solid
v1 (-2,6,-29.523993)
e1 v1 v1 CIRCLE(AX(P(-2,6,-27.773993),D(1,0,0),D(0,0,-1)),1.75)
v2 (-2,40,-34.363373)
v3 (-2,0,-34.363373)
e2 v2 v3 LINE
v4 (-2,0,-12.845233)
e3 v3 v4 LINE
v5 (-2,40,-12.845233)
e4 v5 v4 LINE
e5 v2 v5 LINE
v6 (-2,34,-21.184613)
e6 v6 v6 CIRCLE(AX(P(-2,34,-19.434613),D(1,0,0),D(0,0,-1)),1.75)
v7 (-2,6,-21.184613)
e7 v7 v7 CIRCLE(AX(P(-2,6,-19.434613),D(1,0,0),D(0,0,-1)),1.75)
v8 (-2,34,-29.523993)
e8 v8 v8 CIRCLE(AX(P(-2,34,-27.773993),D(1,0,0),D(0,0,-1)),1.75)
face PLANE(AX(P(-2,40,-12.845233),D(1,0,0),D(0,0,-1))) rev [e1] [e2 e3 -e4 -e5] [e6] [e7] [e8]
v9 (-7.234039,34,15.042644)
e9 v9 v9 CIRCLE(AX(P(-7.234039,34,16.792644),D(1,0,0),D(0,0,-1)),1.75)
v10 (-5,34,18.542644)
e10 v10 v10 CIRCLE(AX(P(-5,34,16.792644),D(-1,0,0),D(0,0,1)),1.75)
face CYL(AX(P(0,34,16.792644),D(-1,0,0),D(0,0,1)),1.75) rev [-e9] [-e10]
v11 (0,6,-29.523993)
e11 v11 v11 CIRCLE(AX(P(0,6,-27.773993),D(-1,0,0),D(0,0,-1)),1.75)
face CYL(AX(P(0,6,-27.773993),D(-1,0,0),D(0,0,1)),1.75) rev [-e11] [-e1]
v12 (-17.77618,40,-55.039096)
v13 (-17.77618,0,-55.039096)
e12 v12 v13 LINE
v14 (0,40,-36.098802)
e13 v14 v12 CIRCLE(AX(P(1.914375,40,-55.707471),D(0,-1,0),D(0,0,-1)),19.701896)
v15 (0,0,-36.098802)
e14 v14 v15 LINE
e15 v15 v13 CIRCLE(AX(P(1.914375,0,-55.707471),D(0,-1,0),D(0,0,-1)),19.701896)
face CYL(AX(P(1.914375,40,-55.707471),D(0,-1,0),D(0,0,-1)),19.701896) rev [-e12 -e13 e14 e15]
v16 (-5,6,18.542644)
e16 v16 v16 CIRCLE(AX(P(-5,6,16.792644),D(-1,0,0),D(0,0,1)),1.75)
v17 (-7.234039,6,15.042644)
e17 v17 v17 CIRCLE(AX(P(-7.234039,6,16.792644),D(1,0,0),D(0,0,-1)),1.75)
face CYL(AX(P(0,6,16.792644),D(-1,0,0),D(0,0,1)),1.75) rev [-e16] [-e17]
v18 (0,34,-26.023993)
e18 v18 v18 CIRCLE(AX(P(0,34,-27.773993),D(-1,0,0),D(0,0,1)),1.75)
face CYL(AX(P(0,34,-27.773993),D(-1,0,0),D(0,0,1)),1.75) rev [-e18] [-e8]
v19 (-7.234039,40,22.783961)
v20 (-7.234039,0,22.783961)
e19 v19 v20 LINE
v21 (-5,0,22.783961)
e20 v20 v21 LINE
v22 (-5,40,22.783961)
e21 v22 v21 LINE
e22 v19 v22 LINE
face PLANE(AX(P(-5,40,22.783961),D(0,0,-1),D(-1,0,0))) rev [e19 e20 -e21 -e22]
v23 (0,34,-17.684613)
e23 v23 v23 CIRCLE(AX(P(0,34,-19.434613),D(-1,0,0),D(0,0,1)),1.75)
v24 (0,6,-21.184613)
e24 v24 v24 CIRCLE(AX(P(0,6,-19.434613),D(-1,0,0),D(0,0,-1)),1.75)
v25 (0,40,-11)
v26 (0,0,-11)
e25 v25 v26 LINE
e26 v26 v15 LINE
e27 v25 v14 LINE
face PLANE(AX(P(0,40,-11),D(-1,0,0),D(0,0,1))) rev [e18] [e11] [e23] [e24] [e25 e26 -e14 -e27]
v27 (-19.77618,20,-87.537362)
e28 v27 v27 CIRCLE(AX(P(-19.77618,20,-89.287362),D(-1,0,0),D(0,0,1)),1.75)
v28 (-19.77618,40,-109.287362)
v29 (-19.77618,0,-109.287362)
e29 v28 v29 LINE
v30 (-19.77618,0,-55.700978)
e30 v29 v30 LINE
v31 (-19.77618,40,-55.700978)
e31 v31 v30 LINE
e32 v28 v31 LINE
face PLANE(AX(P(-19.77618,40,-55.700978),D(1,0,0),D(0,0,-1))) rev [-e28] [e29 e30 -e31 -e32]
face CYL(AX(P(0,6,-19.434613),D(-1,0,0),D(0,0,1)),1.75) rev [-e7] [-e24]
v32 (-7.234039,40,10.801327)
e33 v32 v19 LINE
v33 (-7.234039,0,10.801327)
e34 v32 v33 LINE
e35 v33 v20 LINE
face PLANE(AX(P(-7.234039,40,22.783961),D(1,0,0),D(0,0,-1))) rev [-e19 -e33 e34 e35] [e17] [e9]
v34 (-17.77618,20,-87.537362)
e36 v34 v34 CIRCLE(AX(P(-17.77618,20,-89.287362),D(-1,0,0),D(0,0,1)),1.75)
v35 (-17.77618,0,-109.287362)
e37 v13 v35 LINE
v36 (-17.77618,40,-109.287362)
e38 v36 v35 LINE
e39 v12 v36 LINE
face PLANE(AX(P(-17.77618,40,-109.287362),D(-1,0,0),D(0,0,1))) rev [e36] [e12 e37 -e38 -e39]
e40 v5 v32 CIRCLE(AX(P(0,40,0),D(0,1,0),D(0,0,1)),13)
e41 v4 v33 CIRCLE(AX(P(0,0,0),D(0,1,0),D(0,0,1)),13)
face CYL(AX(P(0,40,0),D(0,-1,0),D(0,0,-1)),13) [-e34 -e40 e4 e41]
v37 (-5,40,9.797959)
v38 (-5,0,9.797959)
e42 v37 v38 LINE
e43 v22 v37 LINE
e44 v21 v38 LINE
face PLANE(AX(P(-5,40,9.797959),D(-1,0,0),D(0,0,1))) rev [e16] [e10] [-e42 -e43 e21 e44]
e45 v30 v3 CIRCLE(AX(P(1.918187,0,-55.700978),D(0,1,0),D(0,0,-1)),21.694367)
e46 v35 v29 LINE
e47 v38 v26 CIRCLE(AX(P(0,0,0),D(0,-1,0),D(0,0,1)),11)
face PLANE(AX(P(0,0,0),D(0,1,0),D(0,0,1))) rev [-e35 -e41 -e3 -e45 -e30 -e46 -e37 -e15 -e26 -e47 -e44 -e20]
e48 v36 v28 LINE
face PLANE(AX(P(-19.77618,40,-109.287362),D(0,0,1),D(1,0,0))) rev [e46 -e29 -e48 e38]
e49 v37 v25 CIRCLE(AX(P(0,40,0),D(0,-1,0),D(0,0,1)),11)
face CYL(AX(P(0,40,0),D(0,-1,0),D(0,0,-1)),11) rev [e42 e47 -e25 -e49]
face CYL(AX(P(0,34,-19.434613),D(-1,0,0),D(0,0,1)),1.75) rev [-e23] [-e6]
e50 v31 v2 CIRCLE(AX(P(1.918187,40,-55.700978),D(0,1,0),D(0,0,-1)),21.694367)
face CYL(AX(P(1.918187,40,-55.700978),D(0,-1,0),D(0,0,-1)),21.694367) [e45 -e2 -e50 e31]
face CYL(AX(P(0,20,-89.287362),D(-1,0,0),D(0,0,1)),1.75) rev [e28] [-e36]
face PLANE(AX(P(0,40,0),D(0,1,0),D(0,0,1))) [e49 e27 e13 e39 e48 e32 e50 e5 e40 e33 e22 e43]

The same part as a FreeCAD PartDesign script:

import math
import FreeCAD as App
import Part
import Sketcher
Q = App.Units.Quantity

doc = App.newDocument("Part")
body = doc.addObject("PartDesign::Body", "Body")

sketch1 = body.newObject("Sketcher::SketchObject", "Sketch")
sketch1.AttachmentSupport = (doc.getObject("XZ_Plane"), [""])
sketch1.MapMode = "FlatFace"
sketch1.addGeometry([
    Part.LineSegment(App.Vector(0, -11, 0), App.Vector(0, -36.1, 0)),
    Part.ArcOfCircle(Part.Circle(App.Vector(1.9, -55.7, 0), App.Vector(0, 0, 1), 19.7), math.radians(96), math.radians(178)),
    Part.LineSegment(App.Vector(-17.8, -55, 0), App.Vector(-17.8, -109.3, 0)),
    Part.LineSegment(App.Vector(-17.8, -109.3, 0), App.Vector(-19.8, -109.3, 0)),
    Part.LineSegment(App.Vector(-19.8, -109.3, 0), App.Vector(-19.8, -55.7, 0)),
    Part.ArcOfCircle(Part.Circle(App.Vector(1.9, -55.7, 0), App.Vector(0, 0, 1), 21.7), math.radians(100), math.radians(180)),
    Part.LineSegment(App.Vector(-2, -34.4, 0), App.Vector(-2, -12.8, 0)),
    Part.ArcOfCircle(Part.Circle(App.Vector(0, 0, 0), App.Vector(0, 0, 1), 13), math.radians(124), math.radians(261)),
    Part.LineSegment(App.Vector(-7.2, 10.8, 0), App.Vector(-7.2, 22.8, 0)),
    Part.LineSegment(App.Vector(-7.2, 22.8, 0), App.Vector(-5, 22.8, 0)),
    Part.LineSegment(App.Vector(-5, 22.8, 0), App.Vector(-5, 9.8, 0)),
    Part.ArcOfCircle(Part.Circle(App.Vector(0, 0, 0), App.Vector(0, 0, 1), 11), math.radians(117), math.radians(270)),
], False)
sketch1.addConstraint([
    Sketcher.Constraint("Coincident", 0, 2, 1, 1),
    Sketcher.Constraint("Coincident", 1, 2, 2, 1),
    Sketcher.Constraint("Coincident", 2, 2, 3, 1),
    Sketcher.Constraint("Coincident", 3, 2, 4, 1),
    Sketcher.Constraint("Tangent", 4, 2, 5, 2),
    Sketcher.Constraint("Coincident", 5, 1, 6, 1),
    Sketcher.Constraint("Coincident", 6, 2, 7, 2),
    Sketcher.Constraint("Coincident", 7, 1, 8, 1),
    Sketcher.Constraint("Coincident", 8, 2, 9, 1),
    Sketcher.Constraint("Coincident", 9, 2, 10, 1),
    Sketcher.Constraint("Coincident", 10, 2, 11, 1),
    Sketcher.Constraint("Coincident", 11, 2, 0, 1),
    Sketcher.Constraint("Vertical", 0),
    Sketcher.Constraint("Vertical", 2),
    Sketcher.Constraint("Horizontal", 3),
    Sketcher.Constraint("Vertical", 4),
    Sketcher.Constraint("Vertical", 6),
    Sketcher.Constraint("Vertical", 8),
    Sketcher.Constraint("Horizontal", 9),
    Sketcher.Constraint("Vertical", 10),
    Sketcher.Constraint("Coincident", 7, 3, -1, 1),
    Sketcher.Constraint("Coincident", 11, 3, -1, 1),
    Sketcher.Constraint("PointOnObject", 0, 2, -2),
    Sketcher.Constraint("Radius", 7, Q("13 mm")),
    Sketcher.Constraint("Radius", 11, Q("11 mm")),
    Sketcher.Constraint("DistanceX", 3, 2, 3, 1, Q("2 mm")),
    Sketcher.Constraint("DistanceX", 5, 1, -1, 1, Q("2 mm")),
    Sketcher.Constraint("DistanceX", 9, 2, -1, 1, Q("5 mm")),
    Sketcher.Constraint("DistanceY", 10, 2, 10, 1, Q("12.986002 mm")),
    Sketcher.Constraint("Radius", 1, Q("19.701896 mm")),
    Sketcher.Constraint("Radius", 5, Q("21.694367 mm")),
    Sketcher.Constraint("DistanceX", 9, 1, 9, 2, Q("2.234039 mm")),
    Sketcher.Constraint("DistanceY", 6, 1, 6, 2, Q("21.518141 mm")),
    Sketcher.Constraint("DistanceY", 0, 2, 0, 1, Q("25.098802 mm")),
    Sketcher.Constraint("DistanceY", 2, 2, 2, 1, Q("54.248266 mm")),
    Sketcher.Constraint("DistanceY", 4, 1, 4, 2, Q("53.586384 mm")),
    Sketcher.Constraint("DistanceY", 1, 3, -1, 1, Q("55.707471 mm")),
])
pad1 = body.newObject("PartDesign::Pad", "Pad")
pad1.Profile = sketch1
pad1.Length = 40
pad1.Reversed = True

sketch2 = body.newObject("Sketcher::SketchObject", "Sketch001")
sketch2.AttachmentSupport = (doc.getObject("YZ_Plane"), [""])
sketch2.MapMode = "FlatFace"
sketch2.AttachmentOffset = App.Placement(App.Vector(0, 0, -2), App.Rotation())
sketch2.addGeometry([
    Part.Circle(App.Vector(34, -27.8, 0), App.Vector(0, 0, 1), 1.8),
    Part.Circle(App.Vector(34, -19.4, 0), App.Vector(0, 0, 1), 1.8),
    Part.Circle(App.Vector(34, 16.8, 0), App.Vector(0, 0, 1), 1.8),
    Part.Circle(App.Vector(20, -89.3, 0), App.Vector(0, 0, 1), 1.8),
    Part.Circle(App.Vector(6, 16.8, 0), App.Vector(0, 0, 1), 1.8),
    Part.Circle(App.Vector(6, -19.4, 0), App.Vector(0, 0, 1), 1.8),
    Part.Circle(App.Vector(6, -27.8, 0), App.Vector(0, 0, 1), 1.8),
], False)
sketch2.addConstraint([
    Sketcher.Constraint("Equal", 0, 1),
    Sketcher.Constraint("Equal", 1, 2),
    Sketcher.Constraint("Equal", 2, 3),
    Sketcher.Constraint("Equal", 3, 4),
    Sketcher.Constraint("Equal", 4, 5),
    Sketcher.Constraint("Equal", 5, 6),
    Sketcher.Constraint("Horizontal", 2, 3, 4, 3),
    Sketcher.Constraint("Horizontal", 1, 3, 5, 3),
    Sketcher.Constraint("Horizontal", 0, 3, 6, 3),
    Sketcher.Constraint("Vertical", 0, 3, 1, 3),
    Sketcher.Constraint("Vertical", 1, 3, 2, 3),
    Sketcher.Constraint("Vertical", 4, 3, 5, 3),
    Sketcher.Constraint("Vertical", 5, 3, 6, 3),
    Sketcher.Constraint("Diameter", 0, Q("3.5 mm")),
    Sketcher.Constraint("DistanceX", -1, 1, 0, 3, Q("34 mm")),
    Sketcher.Constraint("DistanceX", -1, 1, 3, 3, Q("20 mm")),
    Sketcher.Constraint("DistanceX", -1, 1, 4, 3, Q("6 mm")),
    Sketcher.Constraint("DistanceY", 3, 3, -1, 1, Q("89.287362 mm")),
    Sketcher.Constraint("DistanceY", 0, 3, 1, 3, Q("8.33938 mm")),
    Sketcher.Constraint("DistanceY", 3, 3, 0, 3, Q("61.513369 mm")),
    Sketcher.Constraint("DistanceY", -1, 1, 2, 3, Q("16.792644 mm")),
])
pocket1 = body.newObject("PartDesign::Pocket", "Pocket")
pocket1.Profile = sketch2
pocket1.Type = "ThroughAll"
pocket1.Midplane = True

doc.recompute()
